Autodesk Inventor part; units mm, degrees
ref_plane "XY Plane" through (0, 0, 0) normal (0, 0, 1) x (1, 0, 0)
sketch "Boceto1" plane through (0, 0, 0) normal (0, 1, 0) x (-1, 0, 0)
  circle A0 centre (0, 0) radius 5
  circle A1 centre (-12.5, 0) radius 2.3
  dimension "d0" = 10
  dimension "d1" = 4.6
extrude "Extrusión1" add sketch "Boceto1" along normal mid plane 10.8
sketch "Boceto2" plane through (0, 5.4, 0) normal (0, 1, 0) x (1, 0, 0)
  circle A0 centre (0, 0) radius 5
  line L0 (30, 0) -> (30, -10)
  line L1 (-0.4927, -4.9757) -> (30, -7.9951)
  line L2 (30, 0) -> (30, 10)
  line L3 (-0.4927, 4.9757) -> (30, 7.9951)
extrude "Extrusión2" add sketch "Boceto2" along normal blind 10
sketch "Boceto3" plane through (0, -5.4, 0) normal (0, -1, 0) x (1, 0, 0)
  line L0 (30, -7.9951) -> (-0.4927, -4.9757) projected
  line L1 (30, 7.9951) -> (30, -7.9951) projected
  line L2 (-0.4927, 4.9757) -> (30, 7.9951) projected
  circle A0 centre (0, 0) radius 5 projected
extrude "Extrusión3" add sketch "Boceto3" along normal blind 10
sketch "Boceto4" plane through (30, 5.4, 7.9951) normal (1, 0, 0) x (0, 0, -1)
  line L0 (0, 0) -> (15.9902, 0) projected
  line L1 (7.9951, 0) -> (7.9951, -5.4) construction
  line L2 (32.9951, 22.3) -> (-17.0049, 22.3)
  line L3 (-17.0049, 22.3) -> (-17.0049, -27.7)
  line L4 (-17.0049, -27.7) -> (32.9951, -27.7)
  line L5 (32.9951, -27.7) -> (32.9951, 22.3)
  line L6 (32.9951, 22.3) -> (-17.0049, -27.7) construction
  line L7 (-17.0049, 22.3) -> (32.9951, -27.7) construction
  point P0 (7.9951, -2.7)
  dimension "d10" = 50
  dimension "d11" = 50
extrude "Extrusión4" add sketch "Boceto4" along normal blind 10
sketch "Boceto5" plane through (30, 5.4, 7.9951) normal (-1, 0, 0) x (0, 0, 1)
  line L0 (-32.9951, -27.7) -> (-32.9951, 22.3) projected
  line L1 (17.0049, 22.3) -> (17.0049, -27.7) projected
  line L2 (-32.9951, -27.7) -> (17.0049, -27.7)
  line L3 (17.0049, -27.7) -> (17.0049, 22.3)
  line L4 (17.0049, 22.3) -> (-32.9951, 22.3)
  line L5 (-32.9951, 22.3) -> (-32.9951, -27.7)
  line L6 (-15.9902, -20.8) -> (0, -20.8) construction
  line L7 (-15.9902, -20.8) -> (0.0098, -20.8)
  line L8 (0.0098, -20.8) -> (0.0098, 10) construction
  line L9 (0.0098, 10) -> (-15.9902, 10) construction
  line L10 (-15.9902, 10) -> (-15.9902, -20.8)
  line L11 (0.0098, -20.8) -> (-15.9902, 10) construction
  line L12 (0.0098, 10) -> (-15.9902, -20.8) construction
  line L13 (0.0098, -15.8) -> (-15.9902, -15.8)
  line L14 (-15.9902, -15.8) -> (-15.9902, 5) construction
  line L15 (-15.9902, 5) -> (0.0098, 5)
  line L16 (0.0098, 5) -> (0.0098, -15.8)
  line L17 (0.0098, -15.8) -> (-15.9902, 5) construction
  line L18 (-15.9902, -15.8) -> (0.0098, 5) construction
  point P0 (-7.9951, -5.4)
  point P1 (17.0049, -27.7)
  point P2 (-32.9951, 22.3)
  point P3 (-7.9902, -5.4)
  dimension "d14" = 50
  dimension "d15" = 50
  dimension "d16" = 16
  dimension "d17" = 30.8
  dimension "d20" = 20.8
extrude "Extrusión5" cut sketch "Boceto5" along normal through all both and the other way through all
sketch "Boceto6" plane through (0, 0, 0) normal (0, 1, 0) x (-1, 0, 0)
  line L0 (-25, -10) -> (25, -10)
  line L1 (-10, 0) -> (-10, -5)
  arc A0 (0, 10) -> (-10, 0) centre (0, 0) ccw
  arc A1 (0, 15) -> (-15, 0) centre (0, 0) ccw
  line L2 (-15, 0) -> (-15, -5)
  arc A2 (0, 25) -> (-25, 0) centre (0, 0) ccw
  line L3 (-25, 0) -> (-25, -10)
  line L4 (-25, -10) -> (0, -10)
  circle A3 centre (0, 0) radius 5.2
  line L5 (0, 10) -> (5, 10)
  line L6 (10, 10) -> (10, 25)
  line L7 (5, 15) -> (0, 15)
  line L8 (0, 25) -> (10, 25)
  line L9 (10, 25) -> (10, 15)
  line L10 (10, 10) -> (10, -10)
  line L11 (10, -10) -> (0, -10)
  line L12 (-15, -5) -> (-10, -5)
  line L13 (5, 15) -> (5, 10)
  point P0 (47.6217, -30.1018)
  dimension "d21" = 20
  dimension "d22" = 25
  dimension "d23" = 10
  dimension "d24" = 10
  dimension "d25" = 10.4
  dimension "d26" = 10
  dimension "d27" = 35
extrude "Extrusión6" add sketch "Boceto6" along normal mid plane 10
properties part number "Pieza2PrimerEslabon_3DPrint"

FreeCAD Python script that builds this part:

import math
import FreeCAD as App
import Part
import Sketcher
from FreeCAD import Vector


def add_polygon(sketch, points):
    """Adds a closed chain of lines whose ends are joined by coincident constraints."""
    first, n = sketch.GeometryCount, len(points)
    for a, b in zip(points, points[1:] + points[:1]):
        sketch.addGeometry(Part.LineSegment(App.Vector(*a, 0), App.Vector(*b, 0)), False)
    for i in range(n):
        sketch.addConstraint(Sketcher.Constraint("Coincident", first + i, 2, first + (i + 1) % n, 1))

doc = App.newDocument("Part")
body = doc.addObject("PartDesign::Body", "Body")
body.AllowCompound = True

# Sketch on XZ plane
sketch1 = doc.addObject("Sketcher::SketchObject", "Sketch")
body.addObject(sketch1)
sketch1.AttachmentSupport = (doc.XZ_Plane, [""])
sketch1.MapMode = "FlatFace"
sketch1.addGeometry([
    Part.Circle(Vector(0, 0, 0), Vector(0, 0, 1), 5),
    Part.Circle(Vector(12.5, 0, 0), Vector(0, 0, 1), 2.3),
], False)
sketch1.addConstraint([
    Sketcher.Constraint("Coincident", 0, 3, -1, 1),
    Sketcher.Constraint("PointOnObject", 1, 3, -1),
    Sketcher.Constraint("Diameter", 0, 10.0),
    Sketcher.Constraint("Diameter", 1, 4.6),
    Sketcher.Constraint("DistanceX", -1, 1, 1, 3, 12.5),
])
pad1 = doc.addObject("PartDesign::Pad", "Pad")
body.addObject(pad1)
pad1.Profile = sketch1
pad1.Length = 10.8
pad1.Midplane = True

# Sketch on XZ plane
sketch2 = doc.addObject("Sketcher::SketchObject", "Sketch001")
body.addObject(sketch2)
sketch2.AttachmentSupport = (doc.XZ_Plane, [""])
sketch2.MapMode = "FlatFace"
sketch2.AttachmentOffset = App.Placement(Vector(0, 0, -5.4), App.Rotation())
sketch2.addGeometry([
    Part.ArcOfCircle(Part.Circle(Vector(0, 0, 0), Vector(0, 0, 1), 5), math.radians(96), math.radians(264)),
    Part.LineSegment(Vector(0, 5, 0), Vector(30, 8, 0)),
    Part.LineSegment(Vector(30, 8, 0), Vector(30, -8, 0)),
    Part.LineSegment(Vector(30, -8, 0), Vector(0, -5, 0)),
], False)
sketch2.addConstraint([
    Sketcher.Constraint("Tangent", 0, 1, 1, 1),
    Sketcher.Constraint("Coincident", 1, 2, 2, 1),
    Sketcher.Constraint("Coincident", 2, 2, 3, 1),
    Sketcher.Constraint("Tangent", 3, 2, 0, 2),
    Sketcher.Constraint("Vertical", 2),
    Sketcher.Constraint("Coincident", 0, 3, -1, 1),
    Sketcher.Constraint("Vertical", 0, 1, 3, 2),
    Sketcher.Constraint("Radius", 0, 5.0),
    Sketcher.Constraint("DistanceX", -1, 1, 1, 2, 30.0),
    Sketcher.Constraint("DistanceY", 2, 2, 2, 1, 15.9902),
])
pad2 = doc.addObject("PartDesign::Pad", "Pad001")
body.addObject(pad2)
pad2.Profile = sketch2
pad2.Length = 10
pad2.Reversed = True

# Sketch on XZ plane
sketch3 = doc.addObject("Sketcher::SketchObject", "Sketch002")
body.addObject(sketch3)
sketch3.AttachmentSupport = (doc.XZ_Plane, [""])
sketch3.MapMode = "FlatFace"
sketch3.AttachmentOffset = App.Placement(Vector(0, 0, 5.4), App.Rotation())
sketch3.addGeometry([
    Part.LineSegment(Vector(0, -5, 0), Vector(30, -8, 0)),
    Part.LineSegment(Vector(30, -8, 0), Vector(30, 8, 0)),
    Part.LineSegment(Vector(30, 8, 0), Vector(0, 5, 0)),
    Part.ArcOfCircle(Part.Circle(Vector(0, 0, 0), Vector(0, 0, 1), 5), math.radians(96), math.radians(264)),
], False)
sketch3.addConstraint([
    Sketcher.Constraint("Coincident", 0, 2, 1, 1),
    Sketcher.Constraint("Coincident", 1, 2, 2, 1),
    Sketcher.Constraint("Tangent", 2, 2, 3, 1),
    Sketcher.Constraint("Tangent", 3, 2, 0, 1),
    Sketcher.Constraint("Vertical", 1),
    Sketcher.Constraint("Coincident", 3, 3, -1, 1),
    Sketcher.Constraint("Vertical", 2, 2, 3, 2),
    Sketcher.Constraint("Radius", 3, 5.0),
    Sketcher.Constraint("DistanceX", -1, 1, 0, 2, 30.0),
    Sketcher.Constraint("DistanceY", 1, 1, 1, 2, 15.9902),
])
pad3 = doc.addObject("PartDesign::Pad", "Pad002")
body.addObject(pad3)
pad3.Profile = sketch3
pad3.Length = 10

# Sketch on YZ plane
sketch4 = doc.addObject("Sketcher::SketchObject", "Sketch003")
body.addObject(sketch4)
sketch4.AttachmentSupport = (doc.YZ_Plane, [""])
sketch4.MapMode = "FlatFace"
sketch4.AttachmentOffset = App.Placement(Vector(0, 0, 30), App.Rotation())
add_polygon(sketch4, [(-22, -25), (28, -25), (28, 25), (-22, 25)])  # lines 0-3
sketch4.addConstraint([
    Sketcher.Constraint("Horizontal", 0),
    Sketcher.Constraint("Vertical", 1),
    Sketcher.Constraint("Horizontal", 2),
    Sketcher.Constraint("Vertical", 3),
    Sketcher.Constraint("Equal", 2, 1),
    Sketcher.Constraint("DistanceX", 0, 1, 0, 2, 50.0),
    Sketcher.Constraint("DistanceY", 0, 2, -1, 1, 25.0),
    Sketcher.Constraint("DistanceX", -1, 1, 0, 2, 27.7),
])
pad4 = doc.addObject("PartDesign::Pad", "Pad003")
body.addObject(pad4)
pad4.Profile = sketch4
pad4.Length = 10

# Sketch on YZ plane
sketch5 = doc.addObject("Sketcher::SketchObject", "Sketch004")
body.addObject(sketch5)
sketch5.AttachmentSupport = (doc.YZ_Plane, [""])
sketch5.MapMode = "FlatFace"
sketch5.AttachmentOffset = App.Placement(Vector(0, 0, 30), App.Rotation())
add_polygon(sketch5, [(28, -25), (-22, -25), (-22, 25), (28, 25)])  # lines 0-3
add_polygon(sketch5, [(-10, -8), (10, -8), (10, 8), (-10, 8)])  # lines 4-7
sketch5.addConstraint([
    Sketcher.Constraint("Horizontal", 0),
    Sketcher.Constraint("Vertical", 1),
    Sketcher.Constraint("Horizontal", 2),
    Sketcher.Constraint("Vertical", 3),
    Sketcher.Constraint("Horizontal", 4),
    Sketcher.Constraint("Vertical", 5),
    Sketcher.Constraint("Horizontal", 6),
    Sketcher.Constraint("Vertical", 7),
    Sketcher.Constraint("Equal", 2, 1),
    Sketcher.Constraint("DistanceX", 0, 2, 0, 1, 50.0),
    Sketcher.Constraint("DistanceY", 5, 1, 5, 2, 16.0),
    Sketcher.Constraint("DistanceX", 4, 1, 4, 2, 20.8),
    Sketcher.Constraint("DistanceY", 0, 2, -1, 1, 25.0),
    Sketcher.Constraint("DistanceX", 0, 2, -1, 1, 22.3),
    Sketcher.Constraint("DistanceX", -1, 1, 4, 2, 10.4),
    Sketcher.Constraint("DistanceY", 4, 2, -1, 1, 7.995),
])
pocket1 = doc.addObject("PartDesign::Pocket", "Pocket")
body.addObject(pocket1)
pocket1.Profile = sketch5
pocket1.Type = "ThroughAll"
pocket1.Midplane = True

# Sketch on XZ plane
sketch6 = doc.addObject("Sketcher::SketchObject", "Sketch005")
body.addObject(sketch6)
sketch6.AttachmentSupport = (doc.XZ_Plane, [""])
sketch6.MapMode = "FlatFace"
sketch6.addGeometry([
    Part.LineSegment(Vector(25, 0, 0), Vector(25, -10, 0)),  # 0
    Part.LineSegment(Vector(25, -10, 0), Vector(-10, -10, 0)),  # 1
    Part.LineSegment(Vector(-10, -10, 0), Vector(-10, 25, 0)),  # 2
    Part.LineSegment(Vector(-10, 25, 0), Vector(0, 25, 0)),  # 3
    Part.ArcOfCircle(Part.Circle(Vector(0, 0, 0), Vector(0, 0, 1), 25), math.radians(0), math.radians(90)),  # 4
    Part.Circle(Vector(0, 0, 0), Vector(0, 0, 1), 5),  # 5
    Part.ArcOfCircle(Part.Circle(Vector(0, 0, 0), Vector(0, 0, 1), 10), math.radians(0), math.radians(90)),  # 6
    Part.LineSegment(Vector(10, 0, 0), Vector(10, -5, 0)),  # 7
    Part.LineSegment(Vector(10, -5, 0), Vector(15, -5, 0)),  # 8
    Part.LineSegment(Vector(15, -5, 0), Vector(15, 0, 0)),  # 9
    Part.ArcOfCircle(Part.Circle(Vector(0, 0, 0), Vector(0, 0, 1), 15), math.radians(0), math.radians(90)),  # 10
    Part.LineSegment(Vector(0, 15, 0), Vector(-5, 15, 0)),  # 11
    Part.LineSegment(Vector(-5, 15, 0), Vector(-5, 10, 0)),  # 12
    Part.LineSegment(Vector(-5, 10, 0), Vector(0, 10, 0)),  # 13
], False)
sketch6.addConstraint([
    Sketcher.Constraint("Coincident", 0, 2, 1, 1),
    Sketcher.Constraint("Coincident", 1, 2, 2, 1),
    Sketcher.Constraint("Coincident", 2, 2, 3, 1),
    Sketcher.Constraint("Tangent", 3, 2, 4, 2),
    Sketcher.Constraint("Tangent", 4, 1, 0, 1),
    Sketcher.Constraint("Tangent", 6, 1, 7, 1),
    Sketcher.Constraint("Coincident", 7, 2, 8, 1),
    Sketcher.Constraint("Coincident", 8, 2, 9, 1),
    Sketcher.Constraint("Tangent", 9, 2, 10, 1),
    Sketcher.Constraint("Tangent", 10, 2, 11, 1),
    Sketcher.Constraint("Coincident", 11, 2, 12, 1),
    Sketcher.Constraint("Coincident", 12, 2, 13, 1),
    Sketcher.Constraint("Tangent", 13, 2, 6, 2),
    Sketcher.Constraint("Vertical", 0),
    Sketcher.Constraint("Horizontal", 1),
    Sketcher.Constraint("Vertical", 2),
    Sketcher.Constraint("Horizontal", 3),
    Sketcher.Constraint("Vertical", 7),
    Sketcher.Constraint("Horizontal", 8),
    Sketcher.Constraint("Vertical", 9),
    Sketcher.Constraint("Horizontal", 11),
    Sketcher.Constraint("Vertical", 12),
    Sketcher.Constraint("Horizontal", 13),
    Sketcher.Constraint("Coincident", 4, 3, -1, 1),
    Sketcher.Constraint("Coincident", 5, 3, -1, 1),
    Sketcher.Constraint("Coincident", 6, 3, -1, 1),
    Sketcher.Constraint("Coincident", 10, 3, -1, 1),
    Sketcher.Constraint("Equal", 8, 11),
    Sketcher.Constraint("Equal", 3, 0),
    Sketcher.Constraint("Equal", 13, 7),
    Sketcher.Constraint("Radius", 4, 25.0),
    Sketcher.Constraint("Radius", 6, 10.0),
    Sketcher.Constraint("Diameter", 5, 10.4),
    Sketcher.Constraint("DistanceX", 1, 2, 1, 1, 35.0),
    Sketcher.Constraint("Radius", 10, 15.0),
])
pad5 = doc.addObject("PartDesign::Pad", "Pad004")
body.addObject(pad5)
pad5.Profile = sketch6
pad5.Length = 10
pad5.Midplane = True

doc.recompute()
